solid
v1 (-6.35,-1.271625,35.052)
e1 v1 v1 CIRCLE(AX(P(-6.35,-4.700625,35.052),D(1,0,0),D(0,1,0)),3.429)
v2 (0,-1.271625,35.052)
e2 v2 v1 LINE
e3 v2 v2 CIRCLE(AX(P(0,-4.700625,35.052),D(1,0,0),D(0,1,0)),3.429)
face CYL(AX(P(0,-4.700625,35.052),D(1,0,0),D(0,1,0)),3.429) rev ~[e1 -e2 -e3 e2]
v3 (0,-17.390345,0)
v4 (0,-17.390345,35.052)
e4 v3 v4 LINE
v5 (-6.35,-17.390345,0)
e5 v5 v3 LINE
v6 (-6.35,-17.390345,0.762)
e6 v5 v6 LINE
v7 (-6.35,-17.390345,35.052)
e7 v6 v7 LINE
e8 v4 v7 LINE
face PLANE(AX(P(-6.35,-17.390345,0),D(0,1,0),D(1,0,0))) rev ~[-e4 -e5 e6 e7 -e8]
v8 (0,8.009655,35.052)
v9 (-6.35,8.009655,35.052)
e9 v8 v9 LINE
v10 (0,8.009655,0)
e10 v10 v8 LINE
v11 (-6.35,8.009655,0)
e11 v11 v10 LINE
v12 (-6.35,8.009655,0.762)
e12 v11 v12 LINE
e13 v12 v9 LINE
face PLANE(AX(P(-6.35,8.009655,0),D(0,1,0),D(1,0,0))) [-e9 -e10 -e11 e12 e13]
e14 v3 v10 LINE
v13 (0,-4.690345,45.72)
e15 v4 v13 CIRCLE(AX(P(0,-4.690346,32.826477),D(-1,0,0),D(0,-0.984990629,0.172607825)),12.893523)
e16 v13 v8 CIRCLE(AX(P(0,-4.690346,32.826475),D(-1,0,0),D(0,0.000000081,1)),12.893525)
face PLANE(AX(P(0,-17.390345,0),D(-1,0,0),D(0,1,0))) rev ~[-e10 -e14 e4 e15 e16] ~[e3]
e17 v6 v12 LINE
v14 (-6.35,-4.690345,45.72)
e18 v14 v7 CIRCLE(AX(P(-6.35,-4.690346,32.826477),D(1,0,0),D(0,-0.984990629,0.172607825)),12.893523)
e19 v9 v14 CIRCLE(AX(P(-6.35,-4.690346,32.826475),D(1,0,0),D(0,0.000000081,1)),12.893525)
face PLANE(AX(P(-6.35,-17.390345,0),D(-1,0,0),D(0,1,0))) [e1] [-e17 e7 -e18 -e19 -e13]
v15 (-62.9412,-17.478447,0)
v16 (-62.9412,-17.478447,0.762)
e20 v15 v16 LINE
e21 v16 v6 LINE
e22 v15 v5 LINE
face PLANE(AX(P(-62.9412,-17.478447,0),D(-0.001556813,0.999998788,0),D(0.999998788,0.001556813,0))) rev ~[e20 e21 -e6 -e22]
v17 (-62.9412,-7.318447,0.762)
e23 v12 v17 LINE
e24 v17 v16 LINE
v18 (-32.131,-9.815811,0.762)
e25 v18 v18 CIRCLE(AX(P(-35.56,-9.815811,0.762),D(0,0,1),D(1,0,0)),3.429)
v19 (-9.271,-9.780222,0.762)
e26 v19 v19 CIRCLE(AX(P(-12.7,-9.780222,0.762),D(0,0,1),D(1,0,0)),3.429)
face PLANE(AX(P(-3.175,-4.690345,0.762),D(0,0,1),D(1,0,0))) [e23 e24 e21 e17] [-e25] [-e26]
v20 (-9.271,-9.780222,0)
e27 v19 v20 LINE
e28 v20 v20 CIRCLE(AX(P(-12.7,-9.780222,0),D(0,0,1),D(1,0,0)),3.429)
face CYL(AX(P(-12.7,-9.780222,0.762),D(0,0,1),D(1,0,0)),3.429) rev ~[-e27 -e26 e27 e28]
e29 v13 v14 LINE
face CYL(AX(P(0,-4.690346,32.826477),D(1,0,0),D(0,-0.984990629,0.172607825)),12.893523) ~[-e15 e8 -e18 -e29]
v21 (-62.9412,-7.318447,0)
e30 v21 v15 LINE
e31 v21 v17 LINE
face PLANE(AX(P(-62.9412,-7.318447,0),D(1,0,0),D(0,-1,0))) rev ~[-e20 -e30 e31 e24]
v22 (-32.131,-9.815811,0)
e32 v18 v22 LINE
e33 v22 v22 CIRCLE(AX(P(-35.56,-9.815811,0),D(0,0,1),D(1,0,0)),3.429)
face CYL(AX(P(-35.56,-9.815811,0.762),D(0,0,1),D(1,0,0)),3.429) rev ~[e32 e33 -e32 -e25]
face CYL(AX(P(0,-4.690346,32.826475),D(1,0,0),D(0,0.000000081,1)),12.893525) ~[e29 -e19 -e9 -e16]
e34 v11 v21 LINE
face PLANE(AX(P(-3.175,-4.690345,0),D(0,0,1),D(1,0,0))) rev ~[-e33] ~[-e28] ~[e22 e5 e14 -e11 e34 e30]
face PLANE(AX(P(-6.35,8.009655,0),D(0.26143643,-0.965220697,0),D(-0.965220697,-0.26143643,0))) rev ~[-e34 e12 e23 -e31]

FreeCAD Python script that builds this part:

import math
import FreeCAD as App
import Part
import Sketcher
from FreeCAD import Vector
Q = App.Units.Quantity

doc = App.newDocument("Part")
body = doc.addObject("PartDesign::Body", "Body")

sketch1 = body.newObject("Sketcher::SketchObject", "Sketch")
sketch1.AttachmentSupport = (doc.getObject("XY_Plane"), [""])
sketch1.MapMode = "FlatFace"
sketch1.addGeometry([
    Part.LineSegment(Vector(-6, 8, 0), Vector(-6, -17, 0)),
    Part.LineSegment(Vector(-6, -17, 0), Vector(0, -17, 0)),
    Part.LineSegment(Vector(0, -17, 0), Vector(0, 8, 0)),
    Part.LineSegment(Vector(0, 8, 0), Vector(-6, 8, 0)),
], False)
sketch1.addConstraint([
    Sketcher.Constraint("Coincident", 0, 2, 1, 1),
    Sketcher.Constraint("Coincident", 1, 2, 2, 1),
    Sketcher.Constraint("Coincident", 2, 2, 3, 1),
    Sketcher.Constraint("Coincident", 3, 2, 0, 1),
    Sketcher.Constraint("Vertical", 0),
    Sketcher.Constraint("Horizontal", 1),
    Sketcher.Constraint("Vertical", 2),
    Sketcher.Constraint("Horizontal", 3),
    Sketcher.Constraint("PointOnObject", 1, 2, -2),
    Sketcher.Constraint("DistanceY", 0, 2, 0, 1, Q("1 in")),
    Sketcher.Constraint("DistanceX", 1, 1, 1, 2, Q("0.25 in")),
    Sketcher.Constraint("DistanceY", 0, 2, -1, 1, Q("17.390345 mm")),
])
pad1 = body.newObject("PartDesign::Pad", "Pad")
pad1.Profile = sketch1
pad1.Length = Q("1.8 in")

sketch2 = body.newObject("Sketcher::SketchObject", "Sketch001")
sketch2.AttachmentSupport = (doc.getObject("XY_Plane"), [""])
sketch2.MapMode = "FlatFace"
sketch2.addGeometry([
    Part.LineSegment(Vector(-6, -17, 0), Vector(0, -17, 0)),
    Part.LineSegment(Vector(0, -17, 0), Vector(0, 8, 0)),
    Part.LineSegment(Vector(0, 8, 0), Vector(-6, 8, 0)),
    Part.LineSegment(Vector(-6, 8, 0), Vector(-63, -7, 0)),
    Part.LineSegment(Vector(-63, -7, 0), Vector(-63, -17, 0)),
    Part.LineSegment(Vector(-63, -17, 0), Vector(-6, -17, 0)),
], False)
sketch2.addConstraint([
    Sketcher.Constraint("Coincident", 0, 2, 1, 1),
    Sketcher.Constraint("Coincident", 1, 2, 2, 1),
    Sketcher.Constraint("Coincident", 2, 2, 3, 1),
    Sketcher.Constraint("Coincident", 3, 2, 4, 1),
    Sketcher.Constraint("Coincident", 4, 2, 5, 1),
    Sketcher.Constraint("Coincident", 5, 2, 0, 1),
    Sketcher.Constraint("Horizontal", 0),
    Sketcher.Constraint("Vertical", 1),
    Sketcher.Constraint("Horizontal", 2),
    Sketcher.Constraint("Vertical", 4),
    Sketcher.Constraint("PointOnObject", 0, 2, -2),
    Sketcher.Constraint("Vertical", 2, 2, 5, 2),
    Sketcher.Constraint("DistanceY", 1, 1, 1, 2, Q("1 in")),
    Sketcher.Constraint("DistanceY", 4, 2, 4, 1, Q("0.4 in")),
    Sketcher.Constraint("DistanceX", 0, 1, 0, 2, Q("0.25 in")),
    Sketcher.Constraint("DistanceX", 3, 2, -1, 1, Q("2.478 in")),
    Sketcher.Constraint("DistanceY", 0, 2, 3, 2, Q("10.071898 mm")),
    Sketcher.Constraint("DistanceY", 0, 2, -1, 1, Q("17.390345 mm")),
])
pad2 = body.newObject("PartDesign::Pad", "Pad001")
pad2.Profile = sketch2
pad2.Length = Q("0.03 in")

sketch3 = body.newObject("Sketcher::SketchObject", "Sketch002")
sketch3.AttachmentSupport = (doc.getObject("YZ_Plane"), [""])
sketch3.MapMode = "FlatFace"
sketch3.addGeometry([
    Part.ArcOfCircle(Part.Circle(Vector(-5, 33, 0), Vector(0, 0, 1), 13), math.radians(10), math.radians(90)),
    Part.LineSegment(Vector(8, 35, 0), Vector(8, 46, 0)),
    Part.LineSegment(Vector(8, 46, 0), Vector(-5, 46, 0)),
    Part.ArcOfCircle(Part.Circle(Vector(-5, 33, 0), Vector(0, 0, 1), 13), math.radians(90), math.radians(170)),
    Part.LineSegment(Vector(-5, 46, 0), Vector(-17, 46, 0)),
    Part.LineSegment(Vector(-17, 46, 0), Vector(-17, 35, 0)),
], False)
sketch3.addConstraint([
    Sketcher.Constraint("Coincident", 0, 1, 1, 1),
    Sketcher.Constraint("Coincident", 1, 2, 2, 1),
    Sketcher.Constraint("Tangent", 2, 2, 0, 2),
    Sketcher.Constraint("Tangent", 3, 1, 4, 1),
    Sketcher.Constraint("Coincident", 4, 2, 5, 1),
    Sketcher.Constraint("Coincident", 5, 2, 3, 2),
    Sketcher.Constraint("Vertical", 1),
    Sketcher.Constraint("Horizontal", 2),
    Sketcher.Constraint("Horizontal", 4),
    Sketcher.Constraint("Vertical", 5),
    Sketcher.Constraint("Coincident", 3, 3, 0, 3),
    Sketcher.Constraint("Horizontal", 1, 2, 3, 1),
    Sketcher.Constraint("Horizontal", 0, 1, 5, 2),
    Sketcher.Constraint("DistanceX", 2, 2, 2, 1, Q("0.5 in")),
    Sketcher.Constraint("DistanceY", 1, 1, 1, 2, Q("0.42 in")),
    Sketcher.Constraint("DistanceY", -1, 1, 1, 2, Q("1.8 in")),
    Sketcher.Constraint("DistanceX", 0, 3, -1, 1, Q("4.690346 mm")),
])
pocket1 = body.newObject("PartDesign::Pocket", "Pocket")
pocket1.Profile = sketch3
pocket1.Length = Q("1 in")

sketch4 = body.newObject("Sketcher::SketchObject", "Sketch003")
sketch4.AttachmentSupport = (doc.getObject("YZ_Plane"), [""])
sketch4.MapMode = "FlatFace"
sketch4.addGeometry(Part.Circle(Vector(-4.7, 35.1, 0), Vector(0, 0, 1), 3.4), False)
sketch4.addConstraint([
    Sketcher.Constraint("Diameter", 0, Q("0.27 in")),
    Sketcher.Constraint("DistanceY", -1, 1, 0, 3, Q("1.38 in")),
    Sketcher.Constraint("DistanceX", 0, 3, -1, 1, Q("4.700625 mm")),
])
pocket2 = body.newObject("PartDesign::Pocket", "Pocket001")
pocket2.Profile = sketch4
pocket2.Length = Q("1 in")

sketch5 = body.newObject("Sketcher::SketchObject", "Sketch004")
sketch5.AttachmentSupport = (doc.getObject("XY_Plane"), [""])
sketch5.MapMode = "FlatFace"
sketch5.AttachmentOffset = App.Placement(Vector(0, 0, 0.03 * 25.4), App.Rotation())
sketch5.addGeometry([
    Part.Circle(Vector(-35.6, -9.8, 0), Vector(0, 0, 1), 3.4),
    Part.Circle(Vector(-12.7, -9.8, 0), Vector(0, 0, 1), 3.4),
], False)
sketch5.addConstraint([
    Sketcher.Constraint("Equal", 0, 1),
    Sketcher.Constraint("Diameter", 0, Q("0.27 in")),
    Sketcher.Constraint("DistanceX", 0, 3, -1, 1, Q("1.4 in")),
    Sketcher.Constraint("DistanceX", 1, 3, -1, 1, Q("0.5 in")),
    Sketcher.Constraint("DistanceY", 0, 3, -1, 1, Q("9.815811 mm")),
    Sketcher.Constraint("DistanceY", 0, 3, 1, 3, Q("0.035589 mm")),
])
pocket3 = body.newObject("PartDesign::Pocket", "Pocket002")
pocket3.Profile = sketch5
pocket3.Length = Q("1 in")

doc.recompute()
